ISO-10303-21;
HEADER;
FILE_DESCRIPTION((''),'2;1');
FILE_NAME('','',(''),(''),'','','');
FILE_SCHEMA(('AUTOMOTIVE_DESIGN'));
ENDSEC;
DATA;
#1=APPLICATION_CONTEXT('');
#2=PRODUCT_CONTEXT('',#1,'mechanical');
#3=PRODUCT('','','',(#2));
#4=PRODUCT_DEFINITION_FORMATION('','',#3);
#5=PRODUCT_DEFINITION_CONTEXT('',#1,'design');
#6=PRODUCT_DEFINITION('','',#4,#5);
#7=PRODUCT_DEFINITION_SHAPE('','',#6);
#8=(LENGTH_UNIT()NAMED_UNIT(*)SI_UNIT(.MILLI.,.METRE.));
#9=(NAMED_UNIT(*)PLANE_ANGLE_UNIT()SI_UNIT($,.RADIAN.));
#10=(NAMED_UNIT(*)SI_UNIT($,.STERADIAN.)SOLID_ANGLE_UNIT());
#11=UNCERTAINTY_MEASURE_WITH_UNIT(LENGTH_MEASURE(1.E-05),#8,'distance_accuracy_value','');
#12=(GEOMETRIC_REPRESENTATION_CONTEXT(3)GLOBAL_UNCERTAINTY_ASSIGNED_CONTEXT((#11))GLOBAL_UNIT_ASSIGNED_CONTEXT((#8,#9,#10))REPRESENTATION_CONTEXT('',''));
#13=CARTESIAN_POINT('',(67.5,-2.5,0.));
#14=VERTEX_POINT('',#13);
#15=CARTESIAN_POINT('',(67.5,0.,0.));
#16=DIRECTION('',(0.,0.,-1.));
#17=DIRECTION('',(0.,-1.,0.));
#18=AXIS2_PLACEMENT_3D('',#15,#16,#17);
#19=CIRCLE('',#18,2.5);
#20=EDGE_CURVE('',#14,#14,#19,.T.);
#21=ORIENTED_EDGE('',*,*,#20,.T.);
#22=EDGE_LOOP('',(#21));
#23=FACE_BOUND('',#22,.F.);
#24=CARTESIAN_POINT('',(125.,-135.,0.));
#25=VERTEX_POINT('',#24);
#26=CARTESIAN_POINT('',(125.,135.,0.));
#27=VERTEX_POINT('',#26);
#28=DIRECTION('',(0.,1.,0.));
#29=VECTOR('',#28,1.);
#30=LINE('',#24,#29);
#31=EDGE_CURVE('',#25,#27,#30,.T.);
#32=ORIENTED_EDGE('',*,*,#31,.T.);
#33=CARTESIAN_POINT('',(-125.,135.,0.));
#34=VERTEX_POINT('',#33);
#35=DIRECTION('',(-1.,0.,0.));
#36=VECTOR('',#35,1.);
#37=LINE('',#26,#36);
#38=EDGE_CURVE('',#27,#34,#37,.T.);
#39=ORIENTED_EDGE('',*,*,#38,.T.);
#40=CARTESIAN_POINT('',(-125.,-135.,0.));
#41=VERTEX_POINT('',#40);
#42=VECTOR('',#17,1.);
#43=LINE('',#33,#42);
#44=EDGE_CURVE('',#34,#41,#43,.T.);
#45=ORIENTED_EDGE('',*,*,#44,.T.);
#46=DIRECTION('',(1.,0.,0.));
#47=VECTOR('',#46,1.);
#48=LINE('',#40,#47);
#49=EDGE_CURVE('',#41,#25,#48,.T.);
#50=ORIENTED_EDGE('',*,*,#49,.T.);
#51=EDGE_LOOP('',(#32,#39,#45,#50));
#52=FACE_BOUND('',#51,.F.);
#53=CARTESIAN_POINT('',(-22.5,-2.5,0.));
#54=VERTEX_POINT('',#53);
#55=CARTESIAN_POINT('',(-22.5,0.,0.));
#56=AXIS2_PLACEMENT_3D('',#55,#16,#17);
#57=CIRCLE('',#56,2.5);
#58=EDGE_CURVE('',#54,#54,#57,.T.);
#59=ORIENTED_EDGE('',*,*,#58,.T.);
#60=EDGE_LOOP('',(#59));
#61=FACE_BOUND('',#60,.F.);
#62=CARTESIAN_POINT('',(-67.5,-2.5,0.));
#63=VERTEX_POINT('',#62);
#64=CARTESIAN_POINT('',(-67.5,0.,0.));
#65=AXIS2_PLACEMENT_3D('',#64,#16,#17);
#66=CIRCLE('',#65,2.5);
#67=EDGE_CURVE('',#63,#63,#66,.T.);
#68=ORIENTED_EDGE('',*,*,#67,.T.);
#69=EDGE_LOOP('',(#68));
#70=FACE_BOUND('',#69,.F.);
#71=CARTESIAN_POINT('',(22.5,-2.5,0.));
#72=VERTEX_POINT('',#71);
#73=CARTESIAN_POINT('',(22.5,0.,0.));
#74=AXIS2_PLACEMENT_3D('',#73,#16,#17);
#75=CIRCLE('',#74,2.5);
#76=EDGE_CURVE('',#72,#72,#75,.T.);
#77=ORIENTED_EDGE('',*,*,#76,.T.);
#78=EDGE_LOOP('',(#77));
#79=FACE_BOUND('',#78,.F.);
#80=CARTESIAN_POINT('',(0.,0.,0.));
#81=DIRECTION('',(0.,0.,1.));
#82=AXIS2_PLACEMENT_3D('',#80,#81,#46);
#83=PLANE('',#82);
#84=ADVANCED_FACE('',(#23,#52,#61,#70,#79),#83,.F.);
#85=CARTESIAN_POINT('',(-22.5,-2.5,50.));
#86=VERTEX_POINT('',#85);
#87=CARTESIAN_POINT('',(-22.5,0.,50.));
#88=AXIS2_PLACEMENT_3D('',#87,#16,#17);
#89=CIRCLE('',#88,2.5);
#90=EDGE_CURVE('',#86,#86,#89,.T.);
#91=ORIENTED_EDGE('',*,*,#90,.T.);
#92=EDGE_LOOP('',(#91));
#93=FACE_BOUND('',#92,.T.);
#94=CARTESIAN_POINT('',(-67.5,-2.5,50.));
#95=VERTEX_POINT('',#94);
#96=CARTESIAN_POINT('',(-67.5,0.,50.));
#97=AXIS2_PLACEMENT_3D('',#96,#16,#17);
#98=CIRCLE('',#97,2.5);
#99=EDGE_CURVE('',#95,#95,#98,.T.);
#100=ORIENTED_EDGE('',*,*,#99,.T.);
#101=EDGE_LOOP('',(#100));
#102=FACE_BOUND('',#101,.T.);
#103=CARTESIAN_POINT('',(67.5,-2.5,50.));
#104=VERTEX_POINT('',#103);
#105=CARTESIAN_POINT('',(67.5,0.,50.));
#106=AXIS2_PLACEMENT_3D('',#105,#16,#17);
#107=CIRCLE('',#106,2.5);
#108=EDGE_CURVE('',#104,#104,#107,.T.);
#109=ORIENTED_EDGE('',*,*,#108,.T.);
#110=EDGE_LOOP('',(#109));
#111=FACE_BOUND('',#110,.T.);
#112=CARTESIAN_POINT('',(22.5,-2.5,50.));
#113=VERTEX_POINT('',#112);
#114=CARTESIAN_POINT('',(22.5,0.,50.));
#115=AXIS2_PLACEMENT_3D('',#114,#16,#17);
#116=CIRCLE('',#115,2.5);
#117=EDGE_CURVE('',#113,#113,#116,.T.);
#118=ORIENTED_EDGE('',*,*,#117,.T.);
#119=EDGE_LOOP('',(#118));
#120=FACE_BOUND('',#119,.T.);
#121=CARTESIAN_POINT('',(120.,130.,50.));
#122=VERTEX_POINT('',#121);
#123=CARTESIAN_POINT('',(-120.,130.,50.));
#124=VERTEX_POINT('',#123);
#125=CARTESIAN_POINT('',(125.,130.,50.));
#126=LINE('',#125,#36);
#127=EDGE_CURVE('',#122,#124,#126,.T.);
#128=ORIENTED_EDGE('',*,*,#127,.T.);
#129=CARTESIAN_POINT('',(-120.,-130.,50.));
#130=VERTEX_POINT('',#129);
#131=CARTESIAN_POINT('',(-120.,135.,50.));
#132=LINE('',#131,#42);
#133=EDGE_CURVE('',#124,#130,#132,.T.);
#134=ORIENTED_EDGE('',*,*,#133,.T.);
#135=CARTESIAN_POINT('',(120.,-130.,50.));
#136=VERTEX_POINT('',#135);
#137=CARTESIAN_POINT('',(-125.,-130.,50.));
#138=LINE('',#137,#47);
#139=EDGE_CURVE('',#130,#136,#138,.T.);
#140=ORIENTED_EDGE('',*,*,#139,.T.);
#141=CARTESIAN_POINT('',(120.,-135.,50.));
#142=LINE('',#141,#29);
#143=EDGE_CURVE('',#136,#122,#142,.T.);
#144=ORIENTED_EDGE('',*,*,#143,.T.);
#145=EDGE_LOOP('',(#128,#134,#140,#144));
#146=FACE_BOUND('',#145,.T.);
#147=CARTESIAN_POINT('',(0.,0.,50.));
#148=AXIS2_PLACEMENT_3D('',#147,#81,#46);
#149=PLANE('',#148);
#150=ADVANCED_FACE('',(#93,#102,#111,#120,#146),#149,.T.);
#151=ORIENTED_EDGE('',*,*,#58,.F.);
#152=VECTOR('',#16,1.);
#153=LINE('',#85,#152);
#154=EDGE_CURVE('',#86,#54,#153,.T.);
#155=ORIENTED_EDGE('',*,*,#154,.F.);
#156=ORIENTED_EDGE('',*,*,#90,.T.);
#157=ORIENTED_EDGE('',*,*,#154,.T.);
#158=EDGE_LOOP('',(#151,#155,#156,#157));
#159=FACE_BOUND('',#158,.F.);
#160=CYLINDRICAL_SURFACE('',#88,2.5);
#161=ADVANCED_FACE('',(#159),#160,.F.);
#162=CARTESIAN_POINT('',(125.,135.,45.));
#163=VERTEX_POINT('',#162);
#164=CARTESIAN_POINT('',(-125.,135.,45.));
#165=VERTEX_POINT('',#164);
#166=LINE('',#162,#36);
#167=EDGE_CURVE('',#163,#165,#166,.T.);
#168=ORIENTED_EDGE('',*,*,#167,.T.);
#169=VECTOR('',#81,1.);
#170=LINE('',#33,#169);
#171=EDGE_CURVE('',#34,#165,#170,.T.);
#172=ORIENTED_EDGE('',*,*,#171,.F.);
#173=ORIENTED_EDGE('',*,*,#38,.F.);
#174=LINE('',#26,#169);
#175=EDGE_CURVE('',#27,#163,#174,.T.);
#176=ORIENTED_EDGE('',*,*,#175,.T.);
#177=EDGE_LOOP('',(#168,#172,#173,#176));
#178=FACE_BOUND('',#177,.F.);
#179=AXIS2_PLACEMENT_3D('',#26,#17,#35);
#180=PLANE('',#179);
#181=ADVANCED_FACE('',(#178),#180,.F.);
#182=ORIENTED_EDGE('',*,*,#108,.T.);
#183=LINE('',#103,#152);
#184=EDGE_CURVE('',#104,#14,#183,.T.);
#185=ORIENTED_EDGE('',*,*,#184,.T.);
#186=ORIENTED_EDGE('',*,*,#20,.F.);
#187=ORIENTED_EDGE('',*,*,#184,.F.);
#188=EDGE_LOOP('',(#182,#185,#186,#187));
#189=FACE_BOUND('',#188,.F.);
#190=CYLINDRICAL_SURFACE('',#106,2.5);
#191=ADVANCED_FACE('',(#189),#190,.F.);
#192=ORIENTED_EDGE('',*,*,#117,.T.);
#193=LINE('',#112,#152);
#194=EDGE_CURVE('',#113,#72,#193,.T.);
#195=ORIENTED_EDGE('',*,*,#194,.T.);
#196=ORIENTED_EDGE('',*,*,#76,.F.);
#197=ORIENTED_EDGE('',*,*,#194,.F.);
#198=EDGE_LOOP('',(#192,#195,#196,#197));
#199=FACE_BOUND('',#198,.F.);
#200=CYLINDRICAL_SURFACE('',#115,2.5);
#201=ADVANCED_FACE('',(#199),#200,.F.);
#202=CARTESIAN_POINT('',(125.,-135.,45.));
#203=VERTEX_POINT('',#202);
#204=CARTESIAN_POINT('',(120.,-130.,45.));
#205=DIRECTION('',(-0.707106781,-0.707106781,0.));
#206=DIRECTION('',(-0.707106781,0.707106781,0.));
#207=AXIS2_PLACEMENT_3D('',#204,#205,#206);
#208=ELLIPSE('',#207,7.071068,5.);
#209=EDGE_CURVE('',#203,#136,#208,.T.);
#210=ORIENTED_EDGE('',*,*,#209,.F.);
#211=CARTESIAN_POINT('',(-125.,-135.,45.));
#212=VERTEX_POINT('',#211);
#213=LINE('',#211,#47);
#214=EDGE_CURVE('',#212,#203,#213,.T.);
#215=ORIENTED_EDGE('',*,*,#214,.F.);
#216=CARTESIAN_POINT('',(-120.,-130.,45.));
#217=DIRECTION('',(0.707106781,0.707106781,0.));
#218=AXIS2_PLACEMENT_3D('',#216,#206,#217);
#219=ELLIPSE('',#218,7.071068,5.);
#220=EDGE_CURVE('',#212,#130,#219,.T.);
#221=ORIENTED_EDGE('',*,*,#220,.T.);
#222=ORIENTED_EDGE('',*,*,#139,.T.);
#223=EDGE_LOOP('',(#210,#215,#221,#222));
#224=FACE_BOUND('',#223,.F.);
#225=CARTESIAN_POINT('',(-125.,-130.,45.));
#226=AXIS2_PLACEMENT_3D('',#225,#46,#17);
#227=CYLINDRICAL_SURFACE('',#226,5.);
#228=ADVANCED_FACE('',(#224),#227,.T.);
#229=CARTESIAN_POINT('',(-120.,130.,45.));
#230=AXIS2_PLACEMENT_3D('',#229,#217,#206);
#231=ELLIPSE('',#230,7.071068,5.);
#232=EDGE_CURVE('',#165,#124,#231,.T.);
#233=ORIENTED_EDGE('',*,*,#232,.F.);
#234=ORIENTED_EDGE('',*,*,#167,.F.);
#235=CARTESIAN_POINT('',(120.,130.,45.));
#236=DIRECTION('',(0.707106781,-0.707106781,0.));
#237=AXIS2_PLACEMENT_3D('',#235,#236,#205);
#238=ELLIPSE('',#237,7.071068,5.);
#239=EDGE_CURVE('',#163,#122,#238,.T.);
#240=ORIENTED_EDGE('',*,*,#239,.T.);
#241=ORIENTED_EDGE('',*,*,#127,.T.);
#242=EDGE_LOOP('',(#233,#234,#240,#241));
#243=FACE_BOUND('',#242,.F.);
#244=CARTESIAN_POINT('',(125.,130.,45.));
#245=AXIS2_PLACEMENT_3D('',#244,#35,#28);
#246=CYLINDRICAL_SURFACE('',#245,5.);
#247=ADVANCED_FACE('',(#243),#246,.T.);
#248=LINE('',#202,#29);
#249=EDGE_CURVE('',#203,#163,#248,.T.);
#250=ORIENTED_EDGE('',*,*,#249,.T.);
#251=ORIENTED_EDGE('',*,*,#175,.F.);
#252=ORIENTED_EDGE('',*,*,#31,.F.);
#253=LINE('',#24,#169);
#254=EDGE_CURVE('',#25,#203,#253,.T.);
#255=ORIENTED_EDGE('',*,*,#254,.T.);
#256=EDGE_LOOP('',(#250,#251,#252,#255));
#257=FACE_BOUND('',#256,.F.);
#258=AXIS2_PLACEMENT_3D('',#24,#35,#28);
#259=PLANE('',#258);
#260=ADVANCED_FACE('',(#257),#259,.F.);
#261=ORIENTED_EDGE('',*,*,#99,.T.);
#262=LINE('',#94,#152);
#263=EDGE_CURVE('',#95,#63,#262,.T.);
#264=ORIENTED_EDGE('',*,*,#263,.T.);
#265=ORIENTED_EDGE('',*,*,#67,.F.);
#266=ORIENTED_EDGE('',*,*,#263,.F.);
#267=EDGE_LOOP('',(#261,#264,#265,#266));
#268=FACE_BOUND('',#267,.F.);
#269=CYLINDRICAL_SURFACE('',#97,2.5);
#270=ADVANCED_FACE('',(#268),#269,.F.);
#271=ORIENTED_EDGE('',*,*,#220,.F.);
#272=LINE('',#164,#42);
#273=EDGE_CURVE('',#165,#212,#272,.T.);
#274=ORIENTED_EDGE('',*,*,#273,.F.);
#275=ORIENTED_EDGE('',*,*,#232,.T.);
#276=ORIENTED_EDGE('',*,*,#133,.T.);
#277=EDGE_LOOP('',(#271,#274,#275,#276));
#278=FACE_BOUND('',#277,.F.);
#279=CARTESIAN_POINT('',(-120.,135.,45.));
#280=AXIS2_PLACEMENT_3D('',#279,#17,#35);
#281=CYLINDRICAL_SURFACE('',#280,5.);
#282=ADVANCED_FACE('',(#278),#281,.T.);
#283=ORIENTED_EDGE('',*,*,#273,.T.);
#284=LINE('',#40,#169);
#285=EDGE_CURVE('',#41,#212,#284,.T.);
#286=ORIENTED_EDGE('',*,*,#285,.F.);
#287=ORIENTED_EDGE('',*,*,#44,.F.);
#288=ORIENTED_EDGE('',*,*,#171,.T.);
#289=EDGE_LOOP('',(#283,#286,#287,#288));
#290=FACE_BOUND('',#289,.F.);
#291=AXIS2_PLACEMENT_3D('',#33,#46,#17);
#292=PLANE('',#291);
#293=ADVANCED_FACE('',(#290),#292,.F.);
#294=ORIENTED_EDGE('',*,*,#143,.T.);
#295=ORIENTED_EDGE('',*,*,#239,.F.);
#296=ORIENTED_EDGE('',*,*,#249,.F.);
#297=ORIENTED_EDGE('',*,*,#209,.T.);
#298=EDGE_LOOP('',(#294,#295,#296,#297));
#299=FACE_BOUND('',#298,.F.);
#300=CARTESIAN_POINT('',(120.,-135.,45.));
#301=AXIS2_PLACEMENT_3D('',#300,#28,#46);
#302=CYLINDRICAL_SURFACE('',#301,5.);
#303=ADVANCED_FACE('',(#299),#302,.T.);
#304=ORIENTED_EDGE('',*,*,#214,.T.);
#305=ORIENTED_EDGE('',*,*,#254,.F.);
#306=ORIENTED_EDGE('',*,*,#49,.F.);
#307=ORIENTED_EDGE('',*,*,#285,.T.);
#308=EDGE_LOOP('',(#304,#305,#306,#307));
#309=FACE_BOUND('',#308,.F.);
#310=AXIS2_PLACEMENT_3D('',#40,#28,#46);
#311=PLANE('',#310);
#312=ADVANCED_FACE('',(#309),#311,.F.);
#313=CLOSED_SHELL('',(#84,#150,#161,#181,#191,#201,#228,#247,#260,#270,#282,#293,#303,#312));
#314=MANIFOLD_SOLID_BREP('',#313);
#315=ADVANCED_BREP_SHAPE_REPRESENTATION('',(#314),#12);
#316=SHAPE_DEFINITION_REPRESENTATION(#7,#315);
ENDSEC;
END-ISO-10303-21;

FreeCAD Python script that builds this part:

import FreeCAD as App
import Part
import Sketcher
from FreeCAD import Vector
Q = App.Units.Quantity


def edges_at(feature, points):
    """Names of the edges that pass closest to the given points."""
    edges = feature.Shape.Edges
    near = lambda p: min(range(len(edges)), key=lambda i: edges[i].distToShape(Part.Vertex(*p))[0])
    return sorted({f"Edge{near(p) + 1}" for p in points})

doc = App.newDocument("Part")
body = doc.addObject("PartDesign::Body", "Body")

# Sketch on XY plane
sketch1 = doc.addObject("Sketcher::SketchObject", "Sketch")
body.addObject(sketch1)
sketch1.AttachmentSupport = (doc.XY_Plane, [""])
sketch1.MapMode = "FlatFace"
sketch1.addGeometry([
    Part.LineSegment(Vector(-125, 135, 0), Vector(-125, -135, 0)),
    Part.LineSegment(Vector(-125, -135, 0), Vector(125, -135, 0)),
    Part.LineSegment(Vector(125, -135, 0), Vector(125, 135, 0)),
    Part.LineSegment(Vector(125, 135, 0), Vector(-125, 135, 0)),
], False)
sketch1.addConstraint([
    Sketcher.Constraint("Coincident", 0, 2, 1, 1),
    Sketcher.Constraint("Coincident", 1, 2, 2, 1),
    Sketcher.Constraint("Coincident", 2, 2, 3, 1),
    Sketcher.Constraint("Coincident", 3, 2, 0, 1),
    Sketcher.Constraint("Vertical", 0),
    Sketcher.Constraint("Horizontal", 1),
    Sketcher.Constraint("Vertical", 2),
    Sketcher.Constraint("Horizontal", 3),
    Sketcher.Constraint("Symmetric", 0, 2, 2, 2, -1, 1),
    Sketcher.Constraint("DistanceX", 1, 1, 1, 2, Q("250 mm")),
    Sketcher.Constraint("DistanceY", 0, 2, 0, 1, Q("270 mm")),
])
pad1 = doc.addObject("PartDesign::Pad", "Pad")
body.addObject(pad1)
pad1.Profile = sketch1
pad1.Length = 50
doc.recompute()

fillet = doc.addObject("PartDesign::Fillet", "Fillet")
body.addObject(fillet)
fillet.Base = (pad1, edges_at(pad1, [
    (0, 135, 50),
    (125, 0, 50),
    (0, -135, 50),
    (-125, 0, 50),
]))
fillet.Radius = 5

# Sketch on XY plane
sketch2 = doc.addObject("Sketcher::SketchObject", "Sketch001")
body.addObject(sketch2)
sketch2.AttachmentSupport = (doc.XY_Plane, [""])
sketch2.MapMode = "FlatFace"
sketch2.AttachmentOffset = App.Placement(Vector(0, 0, 50), App.Rotation())
sketch2.addGeometry([
    Part.Circle(Vector(-67.5, 0, 0), Vector(0, 0, 1), 2.5),
    Part.Circle(Vector(-22.5, 0, 0), Vector(0, 0, 1), 2.5),
    Part.Circle(Vector(22.5, 0, 0), Vector(0, 0, 1), 2.5),
    Part.Circle(Vector(67.5, 0, 0), Vector(0, 0, 1), 2.5),
], False)
sketch2.addConstraint([
    Sketcher.Constraint("Equal", 0, 1),
    Sketcher.Constraint("Equal", 1, 2),
    Sketcher.Constraint("Equal", 2, 3),
    Sketcher.Constraint("Symmetric", 1, 3, 2, 3, -1, 1),
    Sketcher.Constraint("Symmetric", 0, 3, 3, 3, -1, 1),
    Sketcher.Constraint("PointOnObject", 0, 3, -1),
    Sketcher.Constraint("PointOnObject", 1, 3, -1),
    Sketcher.Constraint("Diameter", 0, Q("5 mm")),
    Sketcher.Constraint("DistanceX", 0, 3, 1, 3, Q("45 mm")),
    Sketcher.Constraint("DistanceX", 1, 3, 2, 3, Q("45 mm")),
])
doc.recompute()
hole = doc.addObject("PartDesign::Hole", "Hole")
body.addObject(hole)
hole.Profile = sketch2
hole.ThreadType = "None"
hole.Diameter = 5
hole.DepthType = "Dimension"
hole.Depth = 50
hole.DrillPoint = "Flat"

doc.recompute()
